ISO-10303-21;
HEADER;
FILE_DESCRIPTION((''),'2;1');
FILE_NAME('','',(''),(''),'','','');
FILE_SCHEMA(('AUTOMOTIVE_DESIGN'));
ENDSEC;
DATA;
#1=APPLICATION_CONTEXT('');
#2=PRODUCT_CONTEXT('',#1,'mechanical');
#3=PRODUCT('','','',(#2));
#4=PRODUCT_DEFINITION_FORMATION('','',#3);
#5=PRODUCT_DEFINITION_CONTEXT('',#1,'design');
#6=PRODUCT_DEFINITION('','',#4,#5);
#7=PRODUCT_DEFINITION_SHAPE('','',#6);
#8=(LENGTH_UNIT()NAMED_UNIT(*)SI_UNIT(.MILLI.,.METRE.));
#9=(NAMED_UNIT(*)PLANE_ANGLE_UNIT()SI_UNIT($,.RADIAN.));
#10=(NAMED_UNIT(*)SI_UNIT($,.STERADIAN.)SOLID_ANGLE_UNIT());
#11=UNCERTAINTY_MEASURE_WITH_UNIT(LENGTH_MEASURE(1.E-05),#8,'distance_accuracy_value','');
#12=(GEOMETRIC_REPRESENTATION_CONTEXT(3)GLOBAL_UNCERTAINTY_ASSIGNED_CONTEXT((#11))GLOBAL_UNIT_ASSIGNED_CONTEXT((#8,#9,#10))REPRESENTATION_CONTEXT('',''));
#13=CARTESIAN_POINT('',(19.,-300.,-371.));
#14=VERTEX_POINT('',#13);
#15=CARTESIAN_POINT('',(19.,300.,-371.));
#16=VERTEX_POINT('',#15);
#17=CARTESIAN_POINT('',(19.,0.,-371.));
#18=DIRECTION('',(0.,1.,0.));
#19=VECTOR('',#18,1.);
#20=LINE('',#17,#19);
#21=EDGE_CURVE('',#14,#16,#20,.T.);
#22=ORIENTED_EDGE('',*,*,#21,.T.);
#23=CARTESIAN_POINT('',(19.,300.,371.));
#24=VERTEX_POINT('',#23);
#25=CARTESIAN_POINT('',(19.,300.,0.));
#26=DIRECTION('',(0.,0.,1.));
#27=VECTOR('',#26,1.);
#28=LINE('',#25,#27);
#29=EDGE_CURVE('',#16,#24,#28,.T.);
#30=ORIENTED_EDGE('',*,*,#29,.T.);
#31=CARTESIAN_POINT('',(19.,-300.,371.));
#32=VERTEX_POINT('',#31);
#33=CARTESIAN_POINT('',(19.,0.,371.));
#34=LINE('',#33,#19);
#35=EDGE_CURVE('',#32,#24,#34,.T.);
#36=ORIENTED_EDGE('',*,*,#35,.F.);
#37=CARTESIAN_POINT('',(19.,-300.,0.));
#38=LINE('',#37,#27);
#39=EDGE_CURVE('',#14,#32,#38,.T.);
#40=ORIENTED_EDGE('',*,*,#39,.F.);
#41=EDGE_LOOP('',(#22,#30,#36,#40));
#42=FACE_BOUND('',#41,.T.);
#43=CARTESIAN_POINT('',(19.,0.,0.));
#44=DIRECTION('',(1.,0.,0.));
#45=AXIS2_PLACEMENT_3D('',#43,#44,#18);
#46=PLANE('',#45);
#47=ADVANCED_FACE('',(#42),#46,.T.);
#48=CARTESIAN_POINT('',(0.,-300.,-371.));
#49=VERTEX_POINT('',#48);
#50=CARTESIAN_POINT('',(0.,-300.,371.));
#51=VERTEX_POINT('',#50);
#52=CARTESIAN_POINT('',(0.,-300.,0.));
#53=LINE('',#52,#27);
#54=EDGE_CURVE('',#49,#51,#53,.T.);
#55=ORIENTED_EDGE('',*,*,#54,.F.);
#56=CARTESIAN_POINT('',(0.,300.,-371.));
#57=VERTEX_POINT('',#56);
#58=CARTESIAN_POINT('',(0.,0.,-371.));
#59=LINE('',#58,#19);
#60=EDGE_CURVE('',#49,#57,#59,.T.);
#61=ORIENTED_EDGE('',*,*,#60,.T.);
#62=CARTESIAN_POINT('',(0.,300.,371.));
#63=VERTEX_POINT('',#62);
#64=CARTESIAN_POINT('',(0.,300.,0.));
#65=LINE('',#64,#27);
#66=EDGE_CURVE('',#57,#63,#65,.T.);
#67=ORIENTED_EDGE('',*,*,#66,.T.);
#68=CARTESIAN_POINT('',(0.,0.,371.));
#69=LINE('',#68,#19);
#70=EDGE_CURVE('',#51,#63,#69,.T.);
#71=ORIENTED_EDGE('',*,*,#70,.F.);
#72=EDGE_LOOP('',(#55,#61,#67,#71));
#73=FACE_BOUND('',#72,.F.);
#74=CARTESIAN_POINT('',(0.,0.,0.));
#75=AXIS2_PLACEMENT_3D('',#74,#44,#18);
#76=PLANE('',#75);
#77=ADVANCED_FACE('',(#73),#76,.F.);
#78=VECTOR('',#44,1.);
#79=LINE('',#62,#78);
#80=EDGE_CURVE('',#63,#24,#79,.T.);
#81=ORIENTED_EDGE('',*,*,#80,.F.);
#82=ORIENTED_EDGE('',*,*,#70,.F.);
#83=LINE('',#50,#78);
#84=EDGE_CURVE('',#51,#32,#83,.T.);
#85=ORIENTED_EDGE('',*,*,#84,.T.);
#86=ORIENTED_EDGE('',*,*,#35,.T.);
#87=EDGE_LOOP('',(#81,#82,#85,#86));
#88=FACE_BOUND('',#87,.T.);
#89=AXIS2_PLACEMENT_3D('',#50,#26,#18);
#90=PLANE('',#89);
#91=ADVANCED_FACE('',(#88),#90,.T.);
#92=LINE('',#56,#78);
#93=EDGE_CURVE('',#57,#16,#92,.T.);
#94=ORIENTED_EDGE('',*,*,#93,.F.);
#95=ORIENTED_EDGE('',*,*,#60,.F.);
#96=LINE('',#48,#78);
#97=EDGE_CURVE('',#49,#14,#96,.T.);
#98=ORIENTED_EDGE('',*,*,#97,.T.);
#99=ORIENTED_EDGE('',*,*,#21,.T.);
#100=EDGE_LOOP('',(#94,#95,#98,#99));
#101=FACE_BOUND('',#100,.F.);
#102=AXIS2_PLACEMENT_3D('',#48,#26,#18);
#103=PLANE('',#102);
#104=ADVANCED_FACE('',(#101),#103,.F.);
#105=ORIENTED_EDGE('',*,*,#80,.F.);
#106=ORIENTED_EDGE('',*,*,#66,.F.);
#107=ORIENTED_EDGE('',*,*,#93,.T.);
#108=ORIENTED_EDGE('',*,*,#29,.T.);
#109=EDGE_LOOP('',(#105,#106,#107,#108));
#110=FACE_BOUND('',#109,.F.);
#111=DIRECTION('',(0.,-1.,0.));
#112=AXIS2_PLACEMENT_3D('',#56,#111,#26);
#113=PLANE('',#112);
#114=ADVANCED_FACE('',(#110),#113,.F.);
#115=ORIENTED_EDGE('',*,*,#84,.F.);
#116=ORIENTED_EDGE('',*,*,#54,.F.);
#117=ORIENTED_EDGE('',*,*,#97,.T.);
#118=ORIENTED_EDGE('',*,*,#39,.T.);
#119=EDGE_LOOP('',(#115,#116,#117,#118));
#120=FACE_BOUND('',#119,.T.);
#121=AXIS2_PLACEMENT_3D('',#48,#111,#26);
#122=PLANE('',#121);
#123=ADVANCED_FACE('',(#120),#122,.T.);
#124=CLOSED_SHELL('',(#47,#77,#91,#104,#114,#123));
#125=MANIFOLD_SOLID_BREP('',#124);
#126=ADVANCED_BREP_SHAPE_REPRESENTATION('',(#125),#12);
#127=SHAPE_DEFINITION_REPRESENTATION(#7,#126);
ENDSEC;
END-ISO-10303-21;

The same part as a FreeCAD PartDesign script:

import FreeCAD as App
import Part
import Sketcher
Q = App.Units.Quantity

doc = App.newDocument("Part")
body = doc.addObject("PartDesign::Body", "Body")

# Sketch on YZ plane
sketch1 = doc.addObject("Sketcher::SketchObject", "Sketch")
body.addObject(sketch1)
sketch1.AttachmentSupport = (doc.YZ_Plane, [""])
sketch1.MapMode = "FlatFace"
sketch1.addGeometry([
    Part.LineSegment(App.Vector(-300, 371, 0), App.Vector(-300, -371, 0)),
    Part.LineSegment(App.Vector(-300, -371, 0), App.Vector(300, -371, 0)),
    Part.LineSegment(App.Vector(300, -371, 0), App.Vector(300, 371, 0)),
    Part.LineSegment(App.Vector(300, 371, 0), App.Vector(-300, 371, 0)),
], False)
sketch1.addConstraint([
    Sketcher.Constraint("Coincident", 0, 2, 1, 1),
    Sketcher.Constraint("Coincident", 1, 2, 2, 1),
    Sketcher.Constraint("Coincident", 2, 2, 3, 1),
    Sketcher.Constraint("Coincident", 3, 2, 0, 1),
    Sketcher.Constraint("Vertical", 0),
    Sketcher.Constraint("Horizontal", 1),
    Sketcher.Constraint("Vertical", 2),
    Sketcher.Constraint("Horizontal", 3),
    Sketcher.Constraint("Symmetric", 0, 2, 2, 2, -1, 1),
    Sketcher.Constraint("DistanceX", 1, 1, 1, 2, Q("600 mm")),
    Sketcher.Constraint("DistanceY", 0, 2, 0, 1, Q("742 mm")),
])
pad1 = doc.addObject("PartDesign::Pad", "Pad")
body.addObject(pad1)
pad1.Profile = sketch1
pad1.Length = 19

doc.recompute()
